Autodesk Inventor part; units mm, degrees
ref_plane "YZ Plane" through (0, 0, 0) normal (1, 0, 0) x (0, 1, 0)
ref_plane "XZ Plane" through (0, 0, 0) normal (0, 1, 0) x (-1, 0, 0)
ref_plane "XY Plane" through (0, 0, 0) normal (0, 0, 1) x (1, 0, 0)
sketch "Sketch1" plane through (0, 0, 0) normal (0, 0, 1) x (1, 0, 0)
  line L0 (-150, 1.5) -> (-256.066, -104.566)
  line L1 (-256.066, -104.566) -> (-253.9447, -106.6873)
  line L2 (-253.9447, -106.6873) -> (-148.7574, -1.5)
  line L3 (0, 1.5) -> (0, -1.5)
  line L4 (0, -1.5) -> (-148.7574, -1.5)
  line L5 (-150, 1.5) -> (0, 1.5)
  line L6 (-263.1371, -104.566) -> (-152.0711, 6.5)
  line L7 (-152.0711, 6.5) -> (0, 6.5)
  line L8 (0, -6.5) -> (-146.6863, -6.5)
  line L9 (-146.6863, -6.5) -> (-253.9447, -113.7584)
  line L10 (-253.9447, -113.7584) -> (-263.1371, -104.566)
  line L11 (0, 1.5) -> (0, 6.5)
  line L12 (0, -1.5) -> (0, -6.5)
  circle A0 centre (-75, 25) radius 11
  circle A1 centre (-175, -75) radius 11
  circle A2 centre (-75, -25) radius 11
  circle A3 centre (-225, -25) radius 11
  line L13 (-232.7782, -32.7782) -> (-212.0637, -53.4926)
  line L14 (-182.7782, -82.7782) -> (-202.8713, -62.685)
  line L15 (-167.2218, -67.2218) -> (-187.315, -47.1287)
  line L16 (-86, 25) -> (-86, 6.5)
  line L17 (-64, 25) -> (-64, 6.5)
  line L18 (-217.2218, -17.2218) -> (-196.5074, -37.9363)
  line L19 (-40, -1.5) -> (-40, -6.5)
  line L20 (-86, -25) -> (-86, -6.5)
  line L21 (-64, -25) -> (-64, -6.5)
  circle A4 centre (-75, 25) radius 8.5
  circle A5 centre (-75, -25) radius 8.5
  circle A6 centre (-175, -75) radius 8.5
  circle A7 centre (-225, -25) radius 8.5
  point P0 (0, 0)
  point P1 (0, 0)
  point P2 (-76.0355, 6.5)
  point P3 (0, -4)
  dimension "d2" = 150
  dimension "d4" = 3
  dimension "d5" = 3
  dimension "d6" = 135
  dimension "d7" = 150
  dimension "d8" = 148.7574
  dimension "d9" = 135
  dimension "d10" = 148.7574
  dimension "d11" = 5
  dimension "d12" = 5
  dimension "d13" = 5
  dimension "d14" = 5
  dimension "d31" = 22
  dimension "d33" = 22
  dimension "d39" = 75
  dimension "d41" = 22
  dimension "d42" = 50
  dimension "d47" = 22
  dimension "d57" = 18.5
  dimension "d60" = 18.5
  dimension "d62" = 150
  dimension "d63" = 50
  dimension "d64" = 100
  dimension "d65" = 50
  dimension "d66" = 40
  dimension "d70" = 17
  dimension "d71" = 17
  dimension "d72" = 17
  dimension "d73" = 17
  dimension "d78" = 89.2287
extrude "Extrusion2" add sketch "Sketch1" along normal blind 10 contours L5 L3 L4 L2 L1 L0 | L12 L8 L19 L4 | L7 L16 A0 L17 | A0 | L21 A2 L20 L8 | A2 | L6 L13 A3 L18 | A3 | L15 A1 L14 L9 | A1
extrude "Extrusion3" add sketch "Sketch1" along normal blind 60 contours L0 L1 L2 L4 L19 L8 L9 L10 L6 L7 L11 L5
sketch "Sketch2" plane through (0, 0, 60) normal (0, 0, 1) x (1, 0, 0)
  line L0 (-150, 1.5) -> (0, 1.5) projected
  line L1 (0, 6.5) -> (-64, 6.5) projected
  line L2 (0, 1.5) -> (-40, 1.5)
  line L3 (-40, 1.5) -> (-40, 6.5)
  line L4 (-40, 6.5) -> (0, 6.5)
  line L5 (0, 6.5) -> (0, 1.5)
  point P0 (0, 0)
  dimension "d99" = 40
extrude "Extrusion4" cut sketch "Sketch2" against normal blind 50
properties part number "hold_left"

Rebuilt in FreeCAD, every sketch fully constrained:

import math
import FreeCAD as App
import Part
import Sketcher
from FreeCAD import Vector
Q = App.Units.Quantity


def add_polygon(sketch, points):
    """Adds a closed chain of lines whose ends are joined by coincident constraints."""
    first, n = sketch.GeometryCount, len(points)
    for a, b in zip(points, points[1:] + points[:1]):
        sketch.addGeometry(Part.LineSegment(App.Vector(*a, 0), App.Vector(*b, 0)), False)
    for i in range(n):
        sketch.addConstraint(Sketcher.Constraint("Coincident", first + i, 2, first + (i + 1) % n, 1))

doc = App.newDocument("Part")
body = doc.addObject("PartDesign::Body", "Body")
body.AllowCompound = True

# Sketch on XY plane
sketch1 = body.newObject("Sketcher::SketchObject", "Sketch")
sketch1.AttachmentSupport = (doc.getObject("XY_Plane"), [""])
sketch1.MapMode = "FlatFace"
add_polygon(sketch1, [(0, 1.5), (-150, 1.5), (-256.1, -104.6), (-253.9, -106.7), (-148.8, -1.5), (-40, -1.5), (-40, -6.5), (0, -6.5)])  # lines 0-7
sketch1.addGeometry(Part.LineSegment(Vector(-86, 6.5, 0), Vector(-64, 6.5, 0)), False)  # 8
sketch1.addGeometry(Part.LineSegment(Vector(-64, 6.5, 0), Vector(-64, 25, 0)), False)  # 9
sketch1.addGeometry(Part.ArcOfCircle(Part.Circle(Vector(-75, 25, 0), Vector(0, 0, 1), 11), math.radians(0), math.radians(180)), False)  # 10
sketch1.addGeometry(Part.LineSegment(Vector(-86, 25, 0), Vector(-86, 6.5, 0)), False)  # 11
sketch1.addGeometry(Part.Circle(Vector(-75, 25, 0), Vector(0, 0, 1), 8.5), False)  # 12
sketch1.addGeometry(Part.LineSegment(Vector(-64, -25, 0), Vector(-64, -6.5, 0)), False)  # 13
sketch1.addGeometry(Part.LineSegment(Vector(-64, -6.5, 0), Vector(-86, -6.5, 0)), False)  # 14
sketch1.addGeometry(Part.LineSegment(Vector(-86, -6.5, 0), Vector(-86, -25, 0)), False)  # 15
sketch1.addGeometry(Part.ArcOfCircle(Part.Circle(Vector(-75, -25, 0), Vector(0, 0, 1), 11), math.radians(180), math.radians(360)), False)  # 16
sketch1.addGeometry(Part.Circle(Vector(-75, -25, 0), Vector(0, 0, 1), 8.5), False)  # 17
sketch1.addGeometry(Part.LineSegment(Vector(-212.1, -53.5, 0), Vector(-196.5, -37.9, 0)), False)  # 18
sketch1.addGeometry(Part.LineSegment(Vector(-196.5, -37.9, 0), Vector(-217.2, -17.2, 0)), False)  # 19
sketch1.addGeometry(Part.ArcOfCircle(Part.Circle(Vector(-225, -25, 0), Vector(0, 0, 1), 11), math.radians(45), math.radians(225)), False)  # 20
sketch1.addGeometry(Part.LineSegment(Vector(-232.8, -32.8, 0), Vector(-212.1, -53.5, 0)), False)  # 21
sketch1.addGeometry(Part.Circle(Vector(-225, -25, 0), Vector(0, 0, 1), 8.5), False)  # 22
sketch1.addGeometry(Part.LineSegment(Vector(-167.2, -67.2, 0), Vector(-187.3, -47.1, 0)), False)  # 23
sketch1.addGeometry(Part.LineSegment(Vector(-187.3, -47.1, 0), Vector(-202.9, -62.7, 0)), False)  # 24
sketch1.addGeometry(Part.LineSegment(Vector(-202.9, -62.7, 0), Vector(-182.8, -82.8, 0)), False)  # 25
sketch1.addGeometry(Part.ArcOfCircle(Part.Circle(Vector(-175, -75, 0), Vector(0, 0, 1), 11), math.radians(-135), math.radians(45)), False)  # 26
sketch1.addGeometry(Part.Circle(Vector(-175, -75, 0), Vector(0, 0, 1), 8.5), False)  # 27
sketch1.addConstraint([
    Sketcher.Constraint("Coincident", 8, 2, 9, 1),
    Sketcher.Constraint("Tangent", 9, 2, 10, 1),
    Sketcher.Constraint("Tangent", 10, 2, 11, 1),
    Sketcher.Constraint("Coincident", 11, 2, 8, 1),
    Sketcher.Constraint("Coincident", 13, 2, 14, 1),
    Sketcher.Constraint("Coincident", 14, 2, 15, 1),
    Sketcher.Constraint("Tangent", 15, 2, 16, 1),
    Sketcher.Constraint("Tangent", 16, 2, 13, 1),
    Sketcher.Constraint("Coincident", 18, 2, 19, 1),
    Sketcher.Constraint("Tangent", 19, 2, 20, 1),
    Sketcher.Constraint("Tangent", 20, 2, 21, 1),
    Sketcher.Constraint("Coincident", 21, 2, 18, 1),
    Sketcher.Constraint("Coincident", 23, 2, 24, 1),
    Sketcher.Constraint("Coincident", 24, 2, 25, 1),
    Sketcher.Constraint("Tangent", 25, 2, 26, 1),
    Sketcher.Constraint("Tangent", 26, 2, 23, 1),
    Sketcher.Constraint("Horizontal", 0),
    Sketcher.Constraint("Horizontal", 4),
    Sketcher.Constraint("Vertical", 5),
    Sketcher.Constraint("Horizontal", 6),
    Sketcher.Constraint("Vertical", 7),
    Sketcher.Constraint("Horizontal", 8),
    Sketcher.Constraint("Vertical", 9),
    Sketcher.Constraint("Vertical", 11),
    Sketcher.Constraint("Vertical", 13),
    Sketcher.Constraint("Horizontal", 14),
    Sketcher.Constraint("Vertical", 15),
    Sketcher.Constraint("Coincident", 12, 3, 10, 3),
    Sketcher.Constraint("Coincident", 17, 3, 16, 3),
    Sketcher.Constraint("Coincident", 22, 3, 20, 3),
    Sketcher.Constraint("Coincident", 27, 3, 26, 3),
    Sketcher.Constraint("Equal", 10, 16),
    Sketcher.Constraint("Equal", 12, 17),
    Sketcher.Constraint("Equal", 16, 20),
    Sketcher.Constraint("Equal", 17, 22),
    Sketcher.Constraint("Equal", 20, 26),
    Sketcher.Constraint("Equal", 22, 27),
    Sketcher.Constraint("Symmetric", 10, 3, 16, 3, -1),
    Sketcher.Constraint("PointOnObject", 6, 2, -2),
    Sketcher.Constraint("Perpendicular", 1, 2),
    Sketcher.Constraint("Perpendicular", 2, 3),
    Sketcher.Constraint("Parallel", 3, 18),
    Sketcher.Constraint("Perpendicular", 18, 19),
    Sketcher.Constraint("Parallel", 19, 21),
    Sketcher.Constraint("Parallel", 21, 23),
    Sketcher.Constraint("Perpendicular", 23, 24),
    Sketcher.Constraint("Perpendicular", 24, 25),
    Sketcher.Constraint("Horizontal", 17, 3, 20, 3),
    Sketcher.Constraint("Horizontal", 6, 2, 13, 2),
    Sketcher.Constraint("Equal", 11, 13),
    Sketcher.Constraint("Diameter", 12, 17.0),
    Sketcher.Constraint("Radius", 10, 11.0),
    Sketcher.Constraint("DistanceX", 0, 2, 0, 1, 150.0),
    Sketcher.Constraint("DistanceX", 6, 1, 6, 2, 40.0),
    Sketcher.Constraint("DistanceY", 5, 2, 5, 1, 5.0),
    Sketcher.Constraint("Angle", 1, Q("-135 deg")),
    Sketcher.Constraint("Distance", 1, 150.0),
    Sketcher.Constraint("Distance", 2, 3.0),
    Sketcher.Constraint("DistanceY", 9, 1, 9, 2, 18.5),
    Sketcher.Constraint("DistanceX", 10, 3, -1, 1, 75.0),
    Sketcher.Constraint("DistanceY", 26, 3, -1, 1, 75.0),
    Sketcher.Constraint("DistanceY", 16, 3, 10, 3, 50.0),
    Sketcher.Constraint("DistanceX", 20, 3, 16, 3, 150.0),
    Sketcher.Constraint("DistanceX", 20, 3, 26, 3, 50.0),
    Sketcher.Constraint("DistanceY", 3, 2, 0, 2, 3.0),
    Sketcher.Constraint("DistanceX", 18, 2, 3, 2, 47.75),
    Sketcher.Constraint("Distance", 23, 28.416),
])
pad1 = body.newObject("PartDesign::Pad", "Pad")
pad1.Profile = sketch1
pad1.Length = 10

# Sketch on XY plane
sketch2 = body.newObject("Sketcher::SketchObject", "Sketch001")
sketch2.AttachmentSupport = (doc.getObject("XY_Plane"), [""])
sketch2.MapMode = "FlatFace"
add_polygon(sketch2, [(-256.1, -104.6), (-150, 1.5), (0, 1.5), (0, 6.5), (-152.1, 6.5), (-263.1, -104.6), (-253.9, -113.8), (-146.7, -6.5), (-40, -6.5), (-40, -1.5), (-148.8, -1.5), (-253.9, -106.7)])  # lines 0-11
sketch2.addConstraint([
    Sketcher.Constraint("Horizontal", 1),
    Sketcher.Constraint("Vertical", 2),
    Sketcher.Constraint("Horizontal", 3),
    Sketcher.Constraint("Horizontal", 7),
    Sketcher.Constraint("Vertical", 8),
    Sketcher.Constraint("Horizontal", 9),
    Sketcher.Constraint("PointOnObject", 1, 2, -2),
    Sketcher.Constraint("Parallel", 0, 4),
    Sketcher.Constraint("Perpendicular", 4, 5),
    Sketcher.Constraint("Perpendicular", 5, 6),
    Sketcher.Constraint("Parallel", 6, 10),
    Sketcher.Constraint("Perpendicular", 10, 11),
    Sketcher.Constraint("Horizontal", 4, 2, 11, 2),
    Sketcher.Constraint("Vertical", 5, 2, 10, 2),
    Sketcher.Constraint("Equal", 2, 8),
    Sketcher.Constraint("DistanceX", 1, 1, 1, 2, 150.0),
    Sketcher.Constraint("DistanceY", 2, 1, 2, 2, 5.0),
    Sketcher.Constraint("Angle", 4, Q("-135 deg")),
    Sketcher.Constraint("Distance", 0, 150.0),
    Sketcher.Constraint("Distance", 11, 3.0),
    Sketcher.Constraint("DistanceX", 7, 2, -1, 1, 40.0),
    Sketcher.Constraint("DistanceY", 8, 2, 1, 2, 3.0),
    Sketcher.Constraint("Distance", 5, 13.0),
    Sketcher.Constraint("DistanceY", -1, 1, 0, 2, 1.5),
])
pad2 = body.newObject("PartDesign::Pad", "Pad001")
pad2.Profile = sketch2
pad2.Length = 60

# Sketch on XY plane
sketch3 = body.newObject("Sketcher::SketchObject", "Sketch002")
sketch3.AttachmentSupport = (doc.getObject("XY_Plane"), [""])
sketch3.MapMode = "FlatFace"
sketch3.AttachmentOffset = App.Placement(Vector(0, 0, 60), App.Rotation())
add_polygon(sketch3, [(-40, 6), (-40, 2), (0, 2), (0, 6)])  # lines 0-3
sketch3.addConstraint([
    Sketcher.Constraint("Vertical", 0),
    Sketcher.Constraint("Horizontal", 1),
    Sketcher.Constraint("Vertical", 2),
    Sketcher.Constraint("Horizontal", 3),
    Sketcher.Constraint("PointOnObject", 1, 2, -2),
    Sketcher.Constraint("DistanceX", 1, 1, 1, 2, 40.0),
    Sketcher.Constraint("DistanceY", 0, 2, 0, 1, 5.0),
    Sketcher.Constraint("DistanceY", -1, 1, 0, 2, 1.5),
])
pocket1 = body.newObject("PartDesign::Pocket", "Pocket")
pocket1.Profile = sketch3
pocket1.Length = 50

doc.recompute()
